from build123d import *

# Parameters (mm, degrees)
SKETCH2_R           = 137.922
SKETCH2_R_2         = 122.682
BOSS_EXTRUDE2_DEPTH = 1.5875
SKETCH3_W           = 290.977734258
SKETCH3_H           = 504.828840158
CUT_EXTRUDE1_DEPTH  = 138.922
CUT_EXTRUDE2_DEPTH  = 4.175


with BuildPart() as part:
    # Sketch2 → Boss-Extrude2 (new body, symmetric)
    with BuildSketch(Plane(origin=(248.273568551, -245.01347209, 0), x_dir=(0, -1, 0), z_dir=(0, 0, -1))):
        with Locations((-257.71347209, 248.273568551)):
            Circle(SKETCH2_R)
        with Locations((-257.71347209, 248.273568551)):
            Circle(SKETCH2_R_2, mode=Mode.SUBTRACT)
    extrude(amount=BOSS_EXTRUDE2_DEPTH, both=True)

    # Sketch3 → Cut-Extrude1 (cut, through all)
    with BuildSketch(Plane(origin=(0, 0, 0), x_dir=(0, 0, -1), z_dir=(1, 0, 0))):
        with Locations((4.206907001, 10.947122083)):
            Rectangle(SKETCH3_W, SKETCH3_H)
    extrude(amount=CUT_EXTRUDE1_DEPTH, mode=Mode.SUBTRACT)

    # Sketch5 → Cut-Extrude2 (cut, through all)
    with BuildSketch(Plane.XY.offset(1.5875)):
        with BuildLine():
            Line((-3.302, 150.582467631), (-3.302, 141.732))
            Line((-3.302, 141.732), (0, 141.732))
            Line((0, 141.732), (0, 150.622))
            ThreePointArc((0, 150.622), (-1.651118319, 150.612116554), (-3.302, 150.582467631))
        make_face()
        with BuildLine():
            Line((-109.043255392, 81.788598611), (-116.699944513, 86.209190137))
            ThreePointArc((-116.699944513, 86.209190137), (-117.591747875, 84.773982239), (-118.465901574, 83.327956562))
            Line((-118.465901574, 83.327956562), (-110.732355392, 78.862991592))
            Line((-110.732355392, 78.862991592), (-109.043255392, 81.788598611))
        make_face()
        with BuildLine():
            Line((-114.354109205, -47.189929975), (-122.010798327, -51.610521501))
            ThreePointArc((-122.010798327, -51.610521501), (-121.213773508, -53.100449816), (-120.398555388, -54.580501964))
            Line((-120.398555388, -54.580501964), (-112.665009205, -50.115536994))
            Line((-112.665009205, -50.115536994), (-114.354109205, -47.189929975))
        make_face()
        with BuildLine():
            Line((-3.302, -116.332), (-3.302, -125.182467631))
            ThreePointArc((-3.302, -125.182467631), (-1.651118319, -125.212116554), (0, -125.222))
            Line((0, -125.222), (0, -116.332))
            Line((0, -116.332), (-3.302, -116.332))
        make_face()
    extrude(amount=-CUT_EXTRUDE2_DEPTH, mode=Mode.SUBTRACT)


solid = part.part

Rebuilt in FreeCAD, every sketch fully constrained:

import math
import FreeCAD as App
import Part
import Sketcher
from FreeCAD import Vector
Q = App.Units.Quantity


def add_polygon(sketch, points):
    """Adds a closed chain of lines whose ends are joined by coincident constraints."""
    first, n = sketch.GeometryCount, len(points)
    for a, b in zip(points, points[1:] + points[:1]):
        sketch.addGeometry(Part.LineSegment(App.Vector(*a, 0), App.Vector(*b, 0)), False)
    for i in range(n):
        sketch.addConstraint(Sketcher.Constraint("Coincident", first + i, 2, first + (i + 1) % n, 1))

doc = App.newDocument("Part")
body = doc.addObject("PartDesign::Body", "Body")

sketch1 = body.newObject("Sketcher::SketchObject", "Sketch")
sketch1.AttachmentSupport = (doc.getObject("XY_Plane"), [""])
sketch1.MapMode = "FlatFace"
sketch1.addGeometry([
    Part.Circle(Vector(0, 13, 0), Vector(0, 0, 1), 138),
    Part.Circle(Vector(0, 13, 0), Vector(0, 0, 1), 123),
], False)
sketch1.addConstraint([
    Sketcher.Constraint("Coincident", 1, 3, 0, 3),
    Sketcher.Constraint("PointOnObject", 0, 3, -2),
    Sketcher.Constraint("Diameter", 0, Q("10.86 in")),
    Sketcher.Constraint("Diameter", 1, Q("9.66 in")),
    Sketcher.Constraint("DistanceY", -1, 1, 0, 3, Q("0.5 in")),
])
pad1 = body.newObject("PartDesign::Pad", "Pad")
pad1.Profile = sketch1
pad1.Length = Q("0.125 in")
pad1.Midplane = True

sketch2 = body.newObject("Sketcher::SketchObject", "Sketch001")
sketch2.AttachmentSupport = (doc.getObject("YZ_Plane"), [""])
sketch2.MapMode = "FlatFace"
add_polygon(sketch2, [(263, 141), (-241, 141), (-241, -150), (263, -150)])
sketch2.addConstraint([
    Sketcher.Constraint("Horizontal", 0),
    Sketcher.Constraint("Vertical", 1),
    Sketcher.Constraint("Horizontal", 2),
    Sketcher.Constraint("Vertical", 3),
    Sketcher.Constraint("DistanceX", 0, 2, 0, 1, Q("504.82884 mm")),
    Sketcher.Constraint("DistanceY", 1, 2, 1, 1, Q("290.977734 mm")),
    Sketcher.Constraint("DistanceY", -1, 1, 0, 2, Q("141.28196 mm")),
    Sketcher.Constraint("DistanceX", 0, 2, -1, 1, Q("241.467298 mm")),
])
pocket1 = body.newObject("PartDesign::Pocket", "Pocket")
pocket1.Profile = sketch2
pocket1.Type = "ThroughAll"
pocket1.Reversed = True

sketch3 = body.newObject("Sketcher::SketchObject", "Sketch002")
sketch3.AttachmentSupport = (doc.getObject("XY_Plane"), [""])
sketch3.MapMode = "FlatFace"
sketch3.AttachmentOffset = App.Placement(Vector(0, 0, 0.0625 * 25.4), App.Rotation())
sketch3.addGeometry([
    Part.LineSegment(Vector(-3.302, 150.582468, 0), Vector(-3.302, 141.732, 0)),
    Part.LineSegment(Vector(-3.302, 141.732, 0), Vector(0, 141.732, 0)),
    Part.LineSegment(Vector(0, 141.732, 0), Vector(0, 150.622, 0)),
    Part.ArcOfCircle(Part.Circle(Vector(0, 12.700005, 0), Vector(0, 0, 1), 137.921995), math.radians(90), math.radians(91.371853)),
    Part.LineSegment(Vector(-109.043255, 81.788599, 0), Vector(-116.699945, 86.20919, 0)),
    Part.ArcOfCircle(Part.Circle(Vector(-0.000008, 12.700005, 0), Vector(0, 0, 1), 137.921991), math.radians(147.793211), math.radians(149.197108)),
    Part.LineSegment(Vector(-118.465902, 83.327957, 0), Vector(-110.732355, 78.862992, 0)),
    Part.LineSegment(Vector(-110.732355, 78.862992, 0), Vector(-109.043255, 81.788599, 0)),
    Part.LineSegment(Vector(-114.354109, -47.18993, 0), Vector(-122.010798, -51.610522, 0)),
    Part.ArcOfCircle(Part.Circle(Vector(0.000002, 12.700001, 0), Vector(0, 0, 1), 137.922002), math.radians(-152.206789), math.radians(-150.802892)),
    Part.LineSegment(Vector(-120.398555, -54.580502, 0), Vector(-112.665009, -50.115537, 0)),
    Part.LineSegment(Vector(-112.665009, -50.115537, 0), Vector(-114.354109, -47.18993, 0)),
    Part.LineSegment(Vector(-3.302, -116.332, 0), Vector(-3.302, -125.182468, 0)),
    Part.ArcOfCircle(Part.Circle(Vector(0, 12.699995, 0), Vector(0, 0, 1), 137.921995), math.radians(-91.371853), math.radians(-90)),
    Part.LineSegment(Vector(0, -125.222, 0), Vector(0, -116.332, 0)),
    Part.LineSegment(Vector(0, -116.332, 0), Vector(-3.302, -116.332, 0)),
], False)
sketch3.addConstraint([
    Sketcher.Constraint("Coincident", 0, 2, 1, 1),
    Sketcher.Constraint("Coincident", 1, 2, 2, 1),
    Sketcher.Constraint("Coincident", 2, 2, 3, 1),
    Sketcher.Constraint("Coincident", 3, 2, 0, 1),
    Sketcher.Constraint("Coincident", 4, 2, 5, 1),
    Sketcher.Constraint("Coincident", 5, 2, 6, 1),
    Sketcher.Constraint("Coincident", 6, 2, 7, 1),
    Sketcher.Constraint("Coincident", 7, 2, 4, 1),
    Sketcher.Constraint("Coincident", 8, 2, 9, 1),
    Sketcher.Constraint("Coincident", 9, 2, 10, 1),
    Sketcher.Constraint("Coincident", 10, 2, 11, 1),
    Sketcher.Constraint("Coincident", 11, 2, 8, 1),
    Sketcher.Constraint("Coincident", 12, 2, 13, 1),
    Sketcher.Constraint("Coincident", 13, 2, 14, 1),
    Sketcher.Constraint("Coincident", 14, 2, 15, 1),
    Sketcher.Constraint("Coincident", 15, 2, 12, 1),
    Sketcher.Constraint("Vertical", 0),
    Sketcher.Constraint("Horizontal", 1),
    Sketcher.Constraint("Vertical", 2),
    Sketcher.Constraint("Vertical", 12),
    Sketcher.Constraint("Vertical", 14),
    Sketcher.Constraint("Horizontal", 15),
    Sketcher.Constraint("Coincident", 5, 3, 3, 3),
    Sketcher.Constraint("Coincident", 9, 3, 3, 3),
    Sketcher.Constraint("Coincident", 13, 3, 9, 3),
    Sketcher.Constraint("PointOnObject", 3, 3, -2),
    Sketcher.Constraint("PointOnObject", 1, 2, -2),
    Sketcher.Constraint("PointOnObject", 13, 2, -2),
    Sketcher.Constraint("Radius", 9, Q("5.4300001 in")),
    Sketcher.Constraint("DistanceX", 1, 1, 1, 2, Q("0.13 in")),
    Sketcher.Constraint("DistanceX", 15, 2, 15, 1, Q("0.13 in")),
    Sketcher.Constraint("DistanceY", 2, 1, 2, 2, Q("0.35 in")),
    Sketcher.Constraint("DistanceY", 14, 1, 14, 2, Q("0.35 in")),
    Sketcher.Constraint("DistanceY", -1, 1, 5, 3, Q("0.5000002 in")),
    Sketcher.Constraint("DistanceY", -1, 1, 0, 2, Q("5.58 in")),
    Sketcher.Constraint("DistanceY", 13, 2, -1, 1, Q("4.93 in")),
    Sketcher.Constraint("Distance", 7, Q("0.133 in")),
    Sketcher.Constraint("Distance", 11, Q("0.133 in")),
    Sketcher.Constraint("Radius", 5, Q("137.921991 mm")),
    Sketcher.Constraint("DistanceX", 6, 2, 7, 2, Q("0.0665 in")),
    Sketcher.Constraint("DistanceX", 11, 2, 10, 2, Q("0.0665 in")),
    Sketcher.Constraint("DistanceX", 5, 2, -1, 1, Q("118.465902 mm")),
    Sketcher.Constraint("DistanceY", -1, 1, 7, 2, Q("81.788599 mm")),
    Sketcher.Constraint("DistanceX", 8, 2, -1, 1, Q("122.010798 mm")),
    Sketcher.Constraint("DistanceY", 9, 2, -1, 1, Q("54.580502 mm")),
    Sketcher.Constraint("DistanceY", 6, 2, 4, 2, Q("7.346199 mm")),
    Sketcher.Constraint("DistanceX", 9, 2, 6, 2, Q("9.6662 mm")),
    Sketcher.Constraint("DistanceX", 10, 2, 5, 3, Q("112.665002 mm")),
    Sketcher.Constraint("Distance", 10, Q("8.92993 mm")),
])
pocket2 = body.newObject("PartDesign::Pocket", "Pocket001")
pocket2.Profile = sketch3
pocket2.Type = "ThroughAll"

doc.recompute()
